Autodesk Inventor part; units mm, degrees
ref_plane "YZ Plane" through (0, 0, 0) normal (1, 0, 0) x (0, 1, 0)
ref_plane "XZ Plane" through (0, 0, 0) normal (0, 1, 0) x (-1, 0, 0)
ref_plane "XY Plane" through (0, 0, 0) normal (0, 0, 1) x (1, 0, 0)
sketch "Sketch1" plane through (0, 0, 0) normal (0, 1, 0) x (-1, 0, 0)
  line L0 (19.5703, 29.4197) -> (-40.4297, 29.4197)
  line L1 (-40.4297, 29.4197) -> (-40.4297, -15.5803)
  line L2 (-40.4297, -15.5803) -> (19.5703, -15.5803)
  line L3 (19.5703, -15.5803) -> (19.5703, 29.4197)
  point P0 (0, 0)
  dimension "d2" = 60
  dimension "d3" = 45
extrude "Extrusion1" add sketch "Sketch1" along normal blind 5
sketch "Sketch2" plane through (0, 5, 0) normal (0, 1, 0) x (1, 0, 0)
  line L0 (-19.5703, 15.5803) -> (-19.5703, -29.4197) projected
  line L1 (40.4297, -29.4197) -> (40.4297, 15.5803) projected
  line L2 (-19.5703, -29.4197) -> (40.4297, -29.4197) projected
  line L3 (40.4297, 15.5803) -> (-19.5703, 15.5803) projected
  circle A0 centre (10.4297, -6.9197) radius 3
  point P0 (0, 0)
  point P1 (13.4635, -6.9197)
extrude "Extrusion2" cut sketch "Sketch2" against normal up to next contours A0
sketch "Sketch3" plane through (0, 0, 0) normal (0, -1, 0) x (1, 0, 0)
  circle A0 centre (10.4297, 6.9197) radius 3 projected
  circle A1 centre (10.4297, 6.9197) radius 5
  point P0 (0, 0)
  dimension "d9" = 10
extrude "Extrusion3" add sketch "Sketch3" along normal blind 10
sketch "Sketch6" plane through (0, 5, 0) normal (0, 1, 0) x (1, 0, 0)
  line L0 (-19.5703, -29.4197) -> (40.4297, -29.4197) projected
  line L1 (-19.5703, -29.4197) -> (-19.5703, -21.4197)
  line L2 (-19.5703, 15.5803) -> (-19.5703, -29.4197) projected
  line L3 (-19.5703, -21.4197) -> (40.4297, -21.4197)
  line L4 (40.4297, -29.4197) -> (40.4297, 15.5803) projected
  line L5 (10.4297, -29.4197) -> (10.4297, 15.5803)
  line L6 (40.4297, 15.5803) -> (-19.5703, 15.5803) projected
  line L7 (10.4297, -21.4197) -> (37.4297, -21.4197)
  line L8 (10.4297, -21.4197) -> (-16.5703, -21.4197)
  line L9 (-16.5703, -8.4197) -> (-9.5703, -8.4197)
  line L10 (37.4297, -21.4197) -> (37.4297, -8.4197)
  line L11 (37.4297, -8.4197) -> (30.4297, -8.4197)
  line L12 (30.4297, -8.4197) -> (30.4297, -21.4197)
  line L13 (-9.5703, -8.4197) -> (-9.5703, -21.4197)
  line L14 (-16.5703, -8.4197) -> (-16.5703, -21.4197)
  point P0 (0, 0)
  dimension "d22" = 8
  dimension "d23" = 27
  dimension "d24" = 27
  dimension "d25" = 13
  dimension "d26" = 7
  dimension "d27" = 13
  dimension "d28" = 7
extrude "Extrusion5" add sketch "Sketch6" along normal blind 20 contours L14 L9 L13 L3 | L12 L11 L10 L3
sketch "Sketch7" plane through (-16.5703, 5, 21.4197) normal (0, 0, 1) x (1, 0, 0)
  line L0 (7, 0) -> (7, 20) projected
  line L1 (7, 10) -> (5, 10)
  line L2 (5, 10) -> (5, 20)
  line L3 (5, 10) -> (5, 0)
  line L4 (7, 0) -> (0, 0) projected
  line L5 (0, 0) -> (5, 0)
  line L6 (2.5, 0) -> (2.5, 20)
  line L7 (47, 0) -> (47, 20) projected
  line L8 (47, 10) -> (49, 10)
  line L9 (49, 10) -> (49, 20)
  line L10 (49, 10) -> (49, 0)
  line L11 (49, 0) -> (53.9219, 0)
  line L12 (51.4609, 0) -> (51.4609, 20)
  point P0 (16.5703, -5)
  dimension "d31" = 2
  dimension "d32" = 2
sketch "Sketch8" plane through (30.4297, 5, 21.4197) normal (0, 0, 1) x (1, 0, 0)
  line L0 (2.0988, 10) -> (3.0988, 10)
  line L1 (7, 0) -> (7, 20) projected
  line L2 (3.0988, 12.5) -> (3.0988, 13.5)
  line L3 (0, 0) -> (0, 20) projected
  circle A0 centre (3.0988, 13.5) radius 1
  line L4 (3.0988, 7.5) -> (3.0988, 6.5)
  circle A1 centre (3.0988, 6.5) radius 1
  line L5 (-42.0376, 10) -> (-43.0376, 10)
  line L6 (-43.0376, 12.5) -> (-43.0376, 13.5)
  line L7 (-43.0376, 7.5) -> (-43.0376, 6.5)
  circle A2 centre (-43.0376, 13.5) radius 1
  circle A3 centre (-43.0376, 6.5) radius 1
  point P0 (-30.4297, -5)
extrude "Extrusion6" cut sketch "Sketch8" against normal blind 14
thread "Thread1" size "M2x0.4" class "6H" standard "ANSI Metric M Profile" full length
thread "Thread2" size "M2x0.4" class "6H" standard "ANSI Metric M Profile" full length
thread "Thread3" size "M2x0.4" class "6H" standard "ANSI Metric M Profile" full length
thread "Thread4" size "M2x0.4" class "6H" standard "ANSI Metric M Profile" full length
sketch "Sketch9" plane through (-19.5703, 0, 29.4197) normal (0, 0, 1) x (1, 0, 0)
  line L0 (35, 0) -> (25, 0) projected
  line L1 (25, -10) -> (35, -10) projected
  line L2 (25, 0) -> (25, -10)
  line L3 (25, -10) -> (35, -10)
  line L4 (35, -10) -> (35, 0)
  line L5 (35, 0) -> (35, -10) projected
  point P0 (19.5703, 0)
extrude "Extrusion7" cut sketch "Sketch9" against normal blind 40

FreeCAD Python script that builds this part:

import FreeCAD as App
import Part
import Sketcher

V = App.Vector

doc = App.newDocument("Part")
body = doc.addObject("PartDesign::Body", "Body")

sketch1 = body.newObject("Sketcher::SketchObject", "Sketch")
sketch1.AttachmentSupport = (doc.getObject("XZ_Plane"), [""])
sketch1.MapMode = "FlatFace"
sketch1.addGeometry(Part.LineSegment(V(-20, -16, 0), V(-20, 29, 0)), False)
sketch1.addGeometry(Part.LineSegment(V(-20, 29, 0), V(40, 29, 0)), False)
sketch1.addGeometry(Part.LineSegment(V(40, 29, 0), V(40, -16, 0)), False)
sketch1.addGeometry(Part.LineSegment(V(40, -16, 0), V(-20, -16, 0)), False)
sketch1.addConstraint(Sketcher.Constraint("Coincident", 0, 2, 1, 1))
sketch1.addConstraint(Sketcher.Constraint("Coincident", 1, 2, 2, 1))
sketch1.addConstraint(Sketcher.Constraint("Coincident", 2, 2, 3, 1))
sketch1.addConstraint(Sketcher.Constraint("Coincident", 3, 2, 0, 1))
sketch1.addConstraint(Sketcher.Constraint("Vertical", 0))
sketch1.addConstraint(Sketcher.Constraint("Horizontal", 1))
sketch1.addConstraint(Sketcher.Constraint("Vertical", 2))
sketch1.addConstraint(Sketcher.Constraint("Horizontal", 3))
sketch1.addConstraint(Sketcher.Constraint("DistanceX", 1, 1, 1, 2, 60.0))
sketch1.addConstraint(Sketcher.Constraint("DistanceY", 0, 1, 0, 2, 45.0))
sketch1.addConstraint(Sketcher.Constraint("DistanceX", 0, 2, -1, 1, 19.5703))
sketch1.addConstraint(Sketcher.Constraint("DistanceY", -1, 1, 0, 2, 29.4197))
pad1 = body.newObject("PartDesign::Pad", "Pad")
pad1.Profile = sketch1
pad1.Length = 5
pad1.Reversed = True

sketch2 = body.newObject("Sketcher::SketchObject", "Sketch001")
sketch2.AttachmentSupport = (doc.getObject("XZ_Plane"), [""])
sketch2.MapMode = "FlatFace"
sketch2.AttachmentOffset = App.Placement(V(0, 0, -5), App.Rotation())
sketch2.addGeometry(Part.Circle(V(10.4, 6.9, 0), V(0, 0, 1), 3), False)
sketch2.addConstraint(Sketcher.Constraint("Diameter", 0, 6.0))
sketch2.addConstraint(Sketcher.Constraint("DistanceX", -1, 1, 0, 3, 10.4297))
sketch2.addConstraint(Sketcher.Constraint("DistanceY", -1, 1, 0, 3, 6.9197))
pocket1 = body.newObject("PartDesign::Pocket", "Pocket")
pocket1.Profile = sketch2
pocket1.Type = "UpToFirst"
pocket1.Reversed = True

sketch3 = body.newObject("Sketcher::SketchObject", "Sketch002")
sketch3.AttachmentSupport = (doc.getObject("XZ_Plane"), [""])
sketch3.MapMode = "FlatFace"
sketch3.addGeometry(Part.Circle(V(10.4, 6.9, 0), V(0, 0, 1), 5), False)
sketch3.addGeometry(Part.Circle(V(10.4, 6.9, 0), V(0, 0, 1), 3), False)
sketch3.addConstraint(Sketcher.Constraint("Coincident", 1, 3, 0, 3))
sketch3.addConstraint(Sketcher.Constraint("Diameter", 0, 10.0))
sketch3.addConstraint(Sketcher.Constraint("Diameter", 1, 6.0))
sketch3.addConstraint(Sketcher.Constraint("DistanceX", -1, 1, 0, 3, 10.4297))
sketch3.addConstraint(Sketcher.Constraint("DistanceY", -1, 1, 0, 3, 6.9197))
pad2 = body.newObject("PartDesign::Pad", "Pad001")
pad2.Profile = sketch3
pad2.Length = 10

sketch4 = body.newObject("Sketcher::SketchObject", "Sketch003")
sketch4.AttachmentSupport = (doc.getObject("XZ_Plane"), [""])
sketch4.MapMode = "FlatFace"
sketch4.AttachmentOffset = App.Placement(V(0, 0, -5), App.Rotation())
sketch4.addGeometry(Part.LineSegment(V(-17, 8, 0), V(-17, 21, 0)), False)
sketch4.addGeometry(Part.LineSegment(V(-17, 21, 0), V(-10, 21, 0)), False)
sketch4.addGeometry(Part.LineSegment(V(-10, 21, 0), V(-10, 8, 0)), False)
sketch4.addGeometry(Part.LineSegment(V(-10, 8, 0), V(-17, 8, 0)), False)
sketch4.addGeometry(Part.LineSegment(V(30, 8, 0), V(30, 21, 0)), False)
sketch4.addGeometry(Part.LineSegment(V(30, 21, 0), V(37, 21, 0)), False)
sketch4.addGeometry(Part.LineSegment(V(37, 21, 0), V(37, 8, 0)), False)
sketch4.addGeometry(Part.LineSegment(V(37, 8, 0), V(30, 8, 0)), False)
sketch4.addConstraint(Sketcher.Constraint("Coincident", 0, 2, 1, 1))
sketch4.addConstraint(Sketcher.Constraint("Coincident", 1, 2, 2, 1))
sketch4.addConstraint(Sketcher.Constraint("Coincident", 2, 2, 3, 1))
sketch4.addConstraint(Sketcher.Constraint("Coincident", 3, 2, 0, 1))
sketch4.addConstraint(Sketcher.Constraint("Coincident", 4, 2, 5, 1))
sketch4.addConstraint(Sketcher.Constraint("Coincident", 5, 2, 6, 1))
sketch4.addConstraint(Sketcher.Constraint("Coincident", 6, 2, 7, 1))
sketch4.addConstraint(Sketcher.Constraint("Coincident", 7, 2, 4, 1))
sketch4.addConstraint(Sketcher.Constraint("Vertical", 0))
sketch4.addConstraint(Sketcher.Constraint("Horizontal", 1))
sketch4.addConstraint(Sketcher.Constraint("Vertical", 2))
sketch4.addConstraint(Sketcher.Constraint("Horizontal", 3))
sketch4.addConstraint(Sketcher.Constraint("Vertical", 4))
sketch4.addConstraint(Sketcher.Constraint("Horizontal", 5))
sketch4.addConstraint(Sketcher.Constraint("Vertical", 6))
sketch4.addConstraint(Sketcher.Constraint("Horizontal", 7))
sketch4.addConstraint(Sketcher.Constraint("Horizontal", 1, 2, 4, 2))
sketch4.addConstraint(Sketcher.Constraint("Horizontal", 3, 2, 6, 2))
sketch4.addConstraint(Sketcher.Constraint("Equal", 3, 5))
sketch4.addConstraint(Sketcher.Constraint("DistanceX", 1, 1, 1, 2, 7.0))
sketch4.addConstraint(Sketcher.Constraint("DistanceY", 0, 1, 0, 2, 13.0))
sketch4.addConstraint(Sketcher.Constraint("DistanceX", 1, 2, 4, 2, 40.0))
sketch4.addConstraint(Sketcher.Constraint("DistanceX", 0, 2, -1, 1, 16.5703))
sketch4.addConstraint(Sketcher.Constraint("DistanceY", -1, 1, 0, 2, 21.4197))
pad3 = body.newObject("PartDesign::Pad", "Pad002")
pad3.Profile = sketch4
pad3.Length = 20
pad3.Reversed = True

sketch5 = body.newObject("Sketcher::SketchObject", "Sketch004")
sketch5.AttachmentSupport = (doc.getObject("XY_Plane"), [""])
sketch5.MapMode = "FlatFace"
sketch5.AttachmentOffset = App.Placement(V(0, 0, 21.4197), App.Rotation())
sketch5.addGeometry(Part.Circle(V(33.5, 18.5, 0), V(0, 0, 1), 1), False)
sketch5.addGeometry(Part.Circle(V(33.5, 11.5, 0), V(0, 0, 1), 1), False)
sketch5.addGeometry(Part.Circle(V(-12.6, 18.5, 0), V(0, 0, 1), 1), False)
sketch5.addGeometry(Part.Circle(V(-12.6, 11.5, 0), V(0, 0, 1), 1), False)
sketch5.addConstraint(Sketcher.Constraint("Equal", 0, 1))
sketch5.addConstraint(Sketcher.Constraint("Equal", 1, 2))
sketch5.addConstraint(Sketcher.Constraint("Equal", 2, 3))
sketch5.addConstraint(Sketcher.Constraint("Horizontal", 0, 3, 2, 3))
sketch5.addConstraint(Sketcher.Constraint("Horizontal", 1, 3, 3, 3))
sketch5.addConstraint(Sketcher.Constraint("Vertical", 0, 3, 1, 3))
sketch5.addConstraint(Sketcher.Constraint("Vertical", 2, 3, 3, 3))
sketch5.addConstraint(Sketcher.Constraint("Diameter", 0, 2.0))
sketch5.addConstraint(Sketcher.Constraint("DistanceY", 1, 3, 0, 3, 7.0))
sketch5.addConstraint(Sketcher.Constraint("DistanceY", -1, 1, 0, 3, 18.5))
sketch5.addConstraint(Sketcher.Constraint("DistanceX", 2, 3, -1, 1, 12.608))
sketch5.addConstraint(Sketcher.Constraint("DistanceX", -1, 1, 0, 3, 33.5285))
pocket2 = body.newObject("PartDesign::Pocket", "Pocket001")
pocket2.Profile = sketch5
pocket2.Length = 14

sketch6 = body.newObject("Sketcher::SketchObject", "Sketch005")
sketch6.AttachmentSupport = (doc.getObject("XY_Plane"), [""])
sketch6.MapMode = "FlatFace"
sketch6.AttachmentOffset = App.Placement(V(0, 0, 29.4197), App.Rotation())
sketch6.addGeometry(Part.LineSegment(V(15, -10, 0), V(15, 0, 0)), False)
sketch6.addGeometry(Part.LineSegment(V(15, 0, 0), V(5, 0, 0)), False)
sketch6.addGeometry(Part.LineSegment(V(5, 0, 0), V(5, -10, 0)), False)
sketch6.addGeometry(Part.LineSegment(V(5, -10, 0), V(15, -10, 0)), False)
sketch6.addConstraint(Sketcher.Constraint("Coincident", 0, 2, 1, 1))
sketch6.addConstraint(Sketcher.Constraint("Coincident", 1, 2, 2, 1))
sketch6.addConstraint(Sketcher.Constraint("Coincident", 2, 2, 3, 1))
sketch6.addConstraint(Sketcher.Constraint("Coincident", 3, 2, 0, 1))
sketch6.addConstraint(Sketcher.Constraint("Vertical", 0))
sketch6.addConstraint(Sketcher.Constraint("Horizontal", 1))
sketch6.addConstraint(Sketcher.Constraint("Vertical", 2))
sketch6.addConstraint(Sketcher.Constraint("Horizontal", 3))
sketch6.addConstraint(Sketcher.Constraint("PointOnObject", 0, 2, -1))
sketch6.addConstraint(Sketcher.Constraint("Equal", 3, 0))
sketch6.addConstraint(Sketcher.Constraint("DistanceX", 1, 2, 1, 1, 10.0))
sketch6.addConstraint(Sketcher.Constraint("DistanceX", -1, 1, 0, 2, 15.4297))
pocket3 = body.newObject("PartDesign::Pocket", "Pocket002")
pocket3.Profile = sketch6
pocket3.Length = 40

doc.recompute()
